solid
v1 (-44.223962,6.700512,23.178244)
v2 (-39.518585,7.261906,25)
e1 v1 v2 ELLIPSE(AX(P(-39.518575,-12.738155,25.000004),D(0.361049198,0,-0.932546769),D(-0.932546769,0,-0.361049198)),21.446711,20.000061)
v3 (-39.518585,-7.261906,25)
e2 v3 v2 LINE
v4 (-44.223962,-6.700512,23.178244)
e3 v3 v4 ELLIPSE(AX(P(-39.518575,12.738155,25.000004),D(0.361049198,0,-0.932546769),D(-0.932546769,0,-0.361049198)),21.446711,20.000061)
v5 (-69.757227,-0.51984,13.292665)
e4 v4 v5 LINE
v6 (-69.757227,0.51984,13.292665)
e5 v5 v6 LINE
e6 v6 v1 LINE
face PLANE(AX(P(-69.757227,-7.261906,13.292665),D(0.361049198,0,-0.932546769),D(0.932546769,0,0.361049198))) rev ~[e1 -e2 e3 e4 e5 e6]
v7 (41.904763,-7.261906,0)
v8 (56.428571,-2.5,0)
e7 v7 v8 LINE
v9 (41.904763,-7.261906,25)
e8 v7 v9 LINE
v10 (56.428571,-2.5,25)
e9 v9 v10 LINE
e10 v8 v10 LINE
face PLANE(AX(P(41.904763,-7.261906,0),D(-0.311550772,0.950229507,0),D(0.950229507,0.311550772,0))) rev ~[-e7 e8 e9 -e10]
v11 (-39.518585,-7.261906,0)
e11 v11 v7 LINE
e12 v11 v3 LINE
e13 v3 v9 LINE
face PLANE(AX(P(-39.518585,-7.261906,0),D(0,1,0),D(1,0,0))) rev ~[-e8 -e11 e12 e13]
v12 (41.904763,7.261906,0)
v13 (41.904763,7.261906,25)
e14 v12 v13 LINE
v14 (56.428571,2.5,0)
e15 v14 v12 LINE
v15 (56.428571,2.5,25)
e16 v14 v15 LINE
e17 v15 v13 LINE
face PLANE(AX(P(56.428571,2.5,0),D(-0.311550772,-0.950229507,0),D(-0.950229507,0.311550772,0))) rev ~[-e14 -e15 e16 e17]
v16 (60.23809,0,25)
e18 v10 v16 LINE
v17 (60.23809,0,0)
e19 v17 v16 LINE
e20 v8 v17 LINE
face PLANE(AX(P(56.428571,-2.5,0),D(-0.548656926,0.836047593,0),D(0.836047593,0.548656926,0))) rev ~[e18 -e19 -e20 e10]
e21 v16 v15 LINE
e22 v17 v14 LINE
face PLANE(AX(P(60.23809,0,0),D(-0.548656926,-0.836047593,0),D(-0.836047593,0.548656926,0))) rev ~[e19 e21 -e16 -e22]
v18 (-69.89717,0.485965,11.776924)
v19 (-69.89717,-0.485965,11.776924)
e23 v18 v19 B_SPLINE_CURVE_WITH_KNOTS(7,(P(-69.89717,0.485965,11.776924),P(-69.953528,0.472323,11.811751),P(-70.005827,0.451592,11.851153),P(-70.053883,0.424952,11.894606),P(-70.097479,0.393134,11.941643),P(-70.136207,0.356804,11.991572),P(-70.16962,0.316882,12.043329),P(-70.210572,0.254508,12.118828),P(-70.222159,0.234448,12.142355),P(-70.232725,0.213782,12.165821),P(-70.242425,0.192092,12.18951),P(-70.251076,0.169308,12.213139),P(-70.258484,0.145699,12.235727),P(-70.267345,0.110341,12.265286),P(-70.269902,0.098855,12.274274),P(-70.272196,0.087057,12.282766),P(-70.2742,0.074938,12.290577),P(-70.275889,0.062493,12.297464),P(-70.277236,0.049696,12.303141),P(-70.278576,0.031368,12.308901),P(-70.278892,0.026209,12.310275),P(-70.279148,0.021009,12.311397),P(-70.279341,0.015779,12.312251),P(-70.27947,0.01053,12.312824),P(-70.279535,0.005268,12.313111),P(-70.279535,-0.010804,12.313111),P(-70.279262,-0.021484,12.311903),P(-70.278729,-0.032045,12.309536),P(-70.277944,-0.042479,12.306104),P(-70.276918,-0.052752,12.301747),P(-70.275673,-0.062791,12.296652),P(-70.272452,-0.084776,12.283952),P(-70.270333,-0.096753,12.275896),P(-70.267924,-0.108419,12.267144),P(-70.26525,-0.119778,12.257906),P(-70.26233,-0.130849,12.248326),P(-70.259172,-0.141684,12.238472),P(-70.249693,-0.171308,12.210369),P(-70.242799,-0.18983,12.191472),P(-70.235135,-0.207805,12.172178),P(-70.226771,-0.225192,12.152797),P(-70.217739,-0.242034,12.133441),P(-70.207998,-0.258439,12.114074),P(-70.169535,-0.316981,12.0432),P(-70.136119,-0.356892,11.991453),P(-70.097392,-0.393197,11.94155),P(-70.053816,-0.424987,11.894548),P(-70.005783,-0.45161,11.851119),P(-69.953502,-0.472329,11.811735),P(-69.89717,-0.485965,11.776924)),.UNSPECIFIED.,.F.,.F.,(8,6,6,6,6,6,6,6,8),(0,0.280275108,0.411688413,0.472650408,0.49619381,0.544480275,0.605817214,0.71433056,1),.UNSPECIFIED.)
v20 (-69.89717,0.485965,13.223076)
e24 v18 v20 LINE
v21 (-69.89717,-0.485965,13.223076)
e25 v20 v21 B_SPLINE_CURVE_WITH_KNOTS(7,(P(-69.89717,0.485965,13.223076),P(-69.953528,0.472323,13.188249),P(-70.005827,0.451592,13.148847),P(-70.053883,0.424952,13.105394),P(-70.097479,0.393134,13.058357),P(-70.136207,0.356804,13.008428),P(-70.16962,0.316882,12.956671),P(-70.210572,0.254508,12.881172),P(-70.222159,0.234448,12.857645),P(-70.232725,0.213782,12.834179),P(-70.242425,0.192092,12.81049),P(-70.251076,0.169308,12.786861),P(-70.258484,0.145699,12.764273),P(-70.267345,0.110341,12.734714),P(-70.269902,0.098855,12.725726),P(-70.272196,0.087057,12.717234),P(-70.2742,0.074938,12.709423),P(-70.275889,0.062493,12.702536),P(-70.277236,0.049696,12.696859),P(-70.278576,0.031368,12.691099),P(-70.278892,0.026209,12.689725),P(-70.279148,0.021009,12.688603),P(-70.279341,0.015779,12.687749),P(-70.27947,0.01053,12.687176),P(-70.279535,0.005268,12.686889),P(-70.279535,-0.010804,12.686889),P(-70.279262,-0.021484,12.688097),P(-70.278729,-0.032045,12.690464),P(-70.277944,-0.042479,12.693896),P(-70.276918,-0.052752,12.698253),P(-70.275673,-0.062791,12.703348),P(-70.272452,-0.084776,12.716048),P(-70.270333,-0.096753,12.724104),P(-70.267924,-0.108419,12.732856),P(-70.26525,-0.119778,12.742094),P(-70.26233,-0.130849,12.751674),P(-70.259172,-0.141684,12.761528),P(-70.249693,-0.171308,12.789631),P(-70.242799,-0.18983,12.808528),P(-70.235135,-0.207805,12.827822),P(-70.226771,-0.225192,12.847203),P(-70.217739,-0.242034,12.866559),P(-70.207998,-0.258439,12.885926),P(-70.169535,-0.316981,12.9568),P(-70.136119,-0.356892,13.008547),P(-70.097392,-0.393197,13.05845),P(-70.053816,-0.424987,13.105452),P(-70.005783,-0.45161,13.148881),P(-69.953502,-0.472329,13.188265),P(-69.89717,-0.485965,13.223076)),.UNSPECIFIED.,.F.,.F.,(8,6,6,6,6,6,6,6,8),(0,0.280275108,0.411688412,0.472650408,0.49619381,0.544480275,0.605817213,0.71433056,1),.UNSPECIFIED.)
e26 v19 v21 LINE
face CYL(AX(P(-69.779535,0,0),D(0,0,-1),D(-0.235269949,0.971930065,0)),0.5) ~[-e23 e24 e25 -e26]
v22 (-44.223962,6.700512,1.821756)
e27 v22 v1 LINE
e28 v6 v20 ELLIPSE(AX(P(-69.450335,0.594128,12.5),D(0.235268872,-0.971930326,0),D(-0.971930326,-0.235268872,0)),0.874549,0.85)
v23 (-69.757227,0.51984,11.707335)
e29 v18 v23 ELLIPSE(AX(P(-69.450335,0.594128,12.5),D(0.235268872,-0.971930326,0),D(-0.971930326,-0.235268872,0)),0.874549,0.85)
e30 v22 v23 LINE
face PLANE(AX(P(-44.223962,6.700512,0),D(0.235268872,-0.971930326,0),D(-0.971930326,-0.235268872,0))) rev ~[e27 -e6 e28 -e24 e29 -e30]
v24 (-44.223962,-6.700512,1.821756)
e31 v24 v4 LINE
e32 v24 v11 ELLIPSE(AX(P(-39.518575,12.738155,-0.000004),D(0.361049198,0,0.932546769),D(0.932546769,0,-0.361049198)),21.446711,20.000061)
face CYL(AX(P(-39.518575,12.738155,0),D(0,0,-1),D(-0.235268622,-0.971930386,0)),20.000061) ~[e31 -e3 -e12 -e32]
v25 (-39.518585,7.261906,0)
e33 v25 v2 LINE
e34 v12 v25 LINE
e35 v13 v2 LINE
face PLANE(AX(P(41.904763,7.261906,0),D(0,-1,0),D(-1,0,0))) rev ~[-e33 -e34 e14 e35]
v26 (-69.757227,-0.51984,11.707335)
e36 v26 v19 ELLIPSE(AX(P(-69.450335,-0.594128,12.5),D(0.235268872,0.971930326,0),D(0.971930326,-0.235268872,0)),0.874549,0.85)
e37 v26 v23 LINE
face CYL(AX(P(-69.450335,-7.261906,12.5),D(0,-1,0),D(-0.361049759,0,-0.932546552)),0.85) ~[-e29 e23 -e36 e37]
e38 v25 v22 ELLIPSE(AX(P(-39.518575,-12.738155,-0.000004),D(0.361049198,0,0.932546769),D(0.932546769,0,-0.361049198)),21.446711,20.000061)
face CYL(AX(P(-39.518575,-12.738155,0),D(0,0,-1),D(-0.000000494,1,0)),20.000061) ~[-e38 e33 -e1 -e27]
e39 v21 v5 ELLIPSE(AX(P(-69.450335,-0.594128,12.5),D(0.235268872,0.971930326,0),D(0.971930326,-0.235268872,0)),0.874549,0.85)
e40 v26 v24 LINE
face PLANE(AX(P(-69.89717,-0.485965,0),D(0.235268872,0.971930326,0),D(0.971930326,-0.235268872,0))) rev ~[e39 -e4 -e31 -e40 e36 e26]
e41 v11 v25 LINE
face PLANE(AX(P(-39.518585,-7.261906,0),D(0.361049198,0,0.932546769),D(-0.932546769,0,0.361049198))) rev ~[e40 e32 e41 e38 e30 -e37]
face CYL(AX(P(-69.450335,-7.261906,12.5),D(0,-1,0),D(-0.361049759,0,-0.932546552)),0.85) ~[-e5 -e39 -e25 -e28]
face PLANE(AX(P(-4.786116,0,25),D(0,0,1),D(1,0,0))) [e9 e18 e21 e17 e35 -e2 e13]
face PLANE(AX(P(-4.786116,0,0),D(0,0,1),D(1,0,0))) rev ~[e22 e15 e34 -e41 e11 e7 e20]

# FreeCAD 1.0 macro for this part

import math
import FreeCAD as App
import Part
import Sketcher

V = App.Vector

doc = App.newDocument("Part")
body = doc.addObject("PartDesign::Body", "Body")

sketch1 = body.newObject("Sketcher::SketchObject", "Sketch")
sketch1.AttachmentSupport = (doc.getObject("XY_Plane"), [""])
sketch1.MapMode = "FlatFace"
sketch1.addGeometry([
    Part.LineSegment(V(56.428571, 2.5, 0), V(41.904763, 7.261906, 0)),
    Part.LineSegment(V(41.904763, 7.261906, 0), V(-39.518585, 7.261906, 0)),
    Part.ArcOfCircle(Part.Circle(V(-39.518575, -12.738155, 0), V(0, 0, 1), 20.000061), math.radians(90.000028), math.radians(103.607458)),
    Part.LineSegment(V(-44.223962, 6.700512, 0), V(-69.89717, 0.485965, 0)),
    Part.ArcOfCircle(Part.Circle(V(-69.779535, 0, 0), V(0, 0, 1), 0.5), math.radians(103.607536), math.radians(256.392464)),
    Part.LineSegment(V(-69.89717, -0.485965, 0), V(-44.223962, -6.700512, 0)),
    Part.ArcOfCircle(Part.Circle(V(-39.518575, 12.738155, 0), V(0, 0, 1), 20.000061), math.radians(-103.607458), math.radians(-90.000028)),
    Part.LineSegment(V(-39.518585, -7.261906, 0), V(41.904763, -7.261906, 0)),
    Part.LineSegment(V(41.904763, -7.261906, 0), V(56.428571, -2.5, 0)),
    Part.LineSegment(V(56.428571, -2.5, 0), V(60.23809, 0, 0)),
    Part.LineSegment(V(60.23809, 0, 0), V(56.428571, 2.5, 0)),
], False)
sketch1.addConstraint([
    Sketcher.Constraint("Coincident", 0, 2, 1, 1),
    Sketcher.Constraint("Coincident", 1, 2, 2, 1),
    Sketcher.Constraint("Coincident", 2, 2, 3, 1),
    Sketcher.Constraint("Coincident", 3, 2, 4, 1),
    Sketcher.Constraint("Coincident", 4, 2, 5, 1),
    Sketcher.Constraint("Coincident", 5, 2, 6, 1),
    Sketcher.Constraint("Coincident", 6, 2, 7, 1),
    Sketcher.Constraint("Coincident", 7, 2, 8, 1),
    Sketcher.Constraint("Coincident", 8, 2, 9, 1),
    Sketcher.Constraint("Coincident", 9, 2, 10, 1),
    Sketcher.Constraint("Coincident", 10, 2, 0, 1),
    Sketcher.Constraint("Horizontal", 1),
    Sketcher.Constraint("Horizontal", 7),
    Sketcher.Constraint("PointOnObject", 4, 3, -1),
    Sketcher.Constraint("PointOnObject", 9, 2, -1),
    Sketcher.Constraint("Radius", 4, 0.5),
    Sketcher.Constraint("DistanceY", 8, 2, 10, 2, 5.0),
    Sketcher.Constraint("DistanceY", 8, 2, -1, 1, 2.5),
    Sketcher.Constraint("Radius", 2, 20.000061),
    Sketcher.Constraint("Radius", 6, 20.000061),
    Sketcher.Constraint("DistanceX", 1, 2, 1, 1, 81.423348),
    Sketcher.Constraint("DistanceX", 7, 1, 7, 2, 81.423348),
    Sketcher.Constraint("DistanceX", 4, 3, 0, 2, 111.684298),
    Sketcher.Constraint("Distance", 3, 26.414659),
    Sketcher.Constraint("Distance", 5, 26.414659),
    Sketcher.Constraint("Distance", 9, 4.556582),
    Sketcher.Constraint("Distance", 10, 4.556582),
    Sketcher.Constraint("DistanceX", 2, 2, -1, 1, 44.223962),
    Sketcher.Constraint("DistanceY", -1, 1, 2, 2, 6.700512),
    Sketcher.Constraint("DistanceX", 3, 2, -1, 1, 69.89717),
    Sketcher.Constraint("DistanceX", 4, 2, -1, 1, 69.89717),
    Sketcher.Constraint("DistanceY", 5, 2, -1, 1, 6.700512),
    Sketcher.Constraint("DistanceX", -1, 1, 8, 2, 56.428571),
    Sketcher.Constraint("DistanceX", 4, 3, 2, 3, 30.26096),
    Sketcher.Constraint("DistanceY", 2, 3, 6, 3, 25.476311),
    Sketcher.Constraint("DistanceX", 2, 3, 7, 2, 81.423338),
])
pad1 = body.newObject("PartDesign::Pad", "Pad")
pad1.Profile = sketch1
pad1.Length = 25

sketch2 = body.newObject("Sketcher::SketchObject", "Sketch001")
sketch2.AttachmentSupport = (doc.getObject("XZ_Plane"), [""])
sketch2.MapMode = "FlatFace"
sketch2.AttachmentOffset = App.Placement(V(0, 0, 7.261906), App.Rotation())
sketch2.addGeometry([
    Part.LineSegment(V(-69.757227, 13.292665, 0), V(-39.518585, 25, 0)),
    Part.LineSegment(V(-39.518585, 25, 0), V(-72.551064, 25, 0)),
    Part.LineSegment(V(-72.551064, 25, 0), V(-72.551064, 0, 0)),
    Part.LineSegment(V(-72.551064, 0, 0), V(-39.518585, 0, 0)),
    Part.LineSegment(V(-39.518585, 0, 0), V(-69.757227, 11.707335, 0)),
    Part.ArcOfCircle(Part.Circle(V(-69.450335, 12.5, 0), V(0, 0, 1), 0.85), math.radians(111.164679), math.radians(248.835321)),
], False)
sketch2.addConstraint([
    Sketcher.Constraint("Coincident", 0, 2, 1, 1),
    Sketcher.Constraint("Coincident", 1, 2, 2, 1),
    Sketcher.Constraint("Coincident", 2, 2, 3, 1),
    Sketcher.Constraint("Coincident", 3, 2, 4, 1),
    Sketcher.Constraint("Tangent", 4, 2, 5, 2),
    Sketcher.Constraint("Tangent", 5, 1, 0, 1),
    Sketcher.Constraint("Horizontal", 1),
    Sketcher.Constraint("Vertical", 2),
    Sketcher.Constraint("Horizontal", 3),
    Sketcher.Constraint("PointOnObject", 2, 2, -1),
    Sketcher.Constraint("Vertical", 0, 2, 3, 2),
    Sketcher.Constraint("Vertical", 4, 2, 5, 1),
    Sketcher.Constraint("DistanceY", 2, 2, 2, 1, 25.0),
    Sketcher.Constraint("Radius", 5, 0.85),
    Sketcher.Constraint("DistanceX", 1, 2, 1, 1, 33.032479),
    Sketcher.Constraint("Distance", 0, 32.425872),
    Sketcher.Constraint("DistanceX", 5, 3, -1, 1, 69.450335),
])
pocket1 = body.newObject("PartDesign::Pocket", "Pocket")
pocket1.Profile = sketch2
pocket1.Type = "ThroughAll"

doc.recompute()
